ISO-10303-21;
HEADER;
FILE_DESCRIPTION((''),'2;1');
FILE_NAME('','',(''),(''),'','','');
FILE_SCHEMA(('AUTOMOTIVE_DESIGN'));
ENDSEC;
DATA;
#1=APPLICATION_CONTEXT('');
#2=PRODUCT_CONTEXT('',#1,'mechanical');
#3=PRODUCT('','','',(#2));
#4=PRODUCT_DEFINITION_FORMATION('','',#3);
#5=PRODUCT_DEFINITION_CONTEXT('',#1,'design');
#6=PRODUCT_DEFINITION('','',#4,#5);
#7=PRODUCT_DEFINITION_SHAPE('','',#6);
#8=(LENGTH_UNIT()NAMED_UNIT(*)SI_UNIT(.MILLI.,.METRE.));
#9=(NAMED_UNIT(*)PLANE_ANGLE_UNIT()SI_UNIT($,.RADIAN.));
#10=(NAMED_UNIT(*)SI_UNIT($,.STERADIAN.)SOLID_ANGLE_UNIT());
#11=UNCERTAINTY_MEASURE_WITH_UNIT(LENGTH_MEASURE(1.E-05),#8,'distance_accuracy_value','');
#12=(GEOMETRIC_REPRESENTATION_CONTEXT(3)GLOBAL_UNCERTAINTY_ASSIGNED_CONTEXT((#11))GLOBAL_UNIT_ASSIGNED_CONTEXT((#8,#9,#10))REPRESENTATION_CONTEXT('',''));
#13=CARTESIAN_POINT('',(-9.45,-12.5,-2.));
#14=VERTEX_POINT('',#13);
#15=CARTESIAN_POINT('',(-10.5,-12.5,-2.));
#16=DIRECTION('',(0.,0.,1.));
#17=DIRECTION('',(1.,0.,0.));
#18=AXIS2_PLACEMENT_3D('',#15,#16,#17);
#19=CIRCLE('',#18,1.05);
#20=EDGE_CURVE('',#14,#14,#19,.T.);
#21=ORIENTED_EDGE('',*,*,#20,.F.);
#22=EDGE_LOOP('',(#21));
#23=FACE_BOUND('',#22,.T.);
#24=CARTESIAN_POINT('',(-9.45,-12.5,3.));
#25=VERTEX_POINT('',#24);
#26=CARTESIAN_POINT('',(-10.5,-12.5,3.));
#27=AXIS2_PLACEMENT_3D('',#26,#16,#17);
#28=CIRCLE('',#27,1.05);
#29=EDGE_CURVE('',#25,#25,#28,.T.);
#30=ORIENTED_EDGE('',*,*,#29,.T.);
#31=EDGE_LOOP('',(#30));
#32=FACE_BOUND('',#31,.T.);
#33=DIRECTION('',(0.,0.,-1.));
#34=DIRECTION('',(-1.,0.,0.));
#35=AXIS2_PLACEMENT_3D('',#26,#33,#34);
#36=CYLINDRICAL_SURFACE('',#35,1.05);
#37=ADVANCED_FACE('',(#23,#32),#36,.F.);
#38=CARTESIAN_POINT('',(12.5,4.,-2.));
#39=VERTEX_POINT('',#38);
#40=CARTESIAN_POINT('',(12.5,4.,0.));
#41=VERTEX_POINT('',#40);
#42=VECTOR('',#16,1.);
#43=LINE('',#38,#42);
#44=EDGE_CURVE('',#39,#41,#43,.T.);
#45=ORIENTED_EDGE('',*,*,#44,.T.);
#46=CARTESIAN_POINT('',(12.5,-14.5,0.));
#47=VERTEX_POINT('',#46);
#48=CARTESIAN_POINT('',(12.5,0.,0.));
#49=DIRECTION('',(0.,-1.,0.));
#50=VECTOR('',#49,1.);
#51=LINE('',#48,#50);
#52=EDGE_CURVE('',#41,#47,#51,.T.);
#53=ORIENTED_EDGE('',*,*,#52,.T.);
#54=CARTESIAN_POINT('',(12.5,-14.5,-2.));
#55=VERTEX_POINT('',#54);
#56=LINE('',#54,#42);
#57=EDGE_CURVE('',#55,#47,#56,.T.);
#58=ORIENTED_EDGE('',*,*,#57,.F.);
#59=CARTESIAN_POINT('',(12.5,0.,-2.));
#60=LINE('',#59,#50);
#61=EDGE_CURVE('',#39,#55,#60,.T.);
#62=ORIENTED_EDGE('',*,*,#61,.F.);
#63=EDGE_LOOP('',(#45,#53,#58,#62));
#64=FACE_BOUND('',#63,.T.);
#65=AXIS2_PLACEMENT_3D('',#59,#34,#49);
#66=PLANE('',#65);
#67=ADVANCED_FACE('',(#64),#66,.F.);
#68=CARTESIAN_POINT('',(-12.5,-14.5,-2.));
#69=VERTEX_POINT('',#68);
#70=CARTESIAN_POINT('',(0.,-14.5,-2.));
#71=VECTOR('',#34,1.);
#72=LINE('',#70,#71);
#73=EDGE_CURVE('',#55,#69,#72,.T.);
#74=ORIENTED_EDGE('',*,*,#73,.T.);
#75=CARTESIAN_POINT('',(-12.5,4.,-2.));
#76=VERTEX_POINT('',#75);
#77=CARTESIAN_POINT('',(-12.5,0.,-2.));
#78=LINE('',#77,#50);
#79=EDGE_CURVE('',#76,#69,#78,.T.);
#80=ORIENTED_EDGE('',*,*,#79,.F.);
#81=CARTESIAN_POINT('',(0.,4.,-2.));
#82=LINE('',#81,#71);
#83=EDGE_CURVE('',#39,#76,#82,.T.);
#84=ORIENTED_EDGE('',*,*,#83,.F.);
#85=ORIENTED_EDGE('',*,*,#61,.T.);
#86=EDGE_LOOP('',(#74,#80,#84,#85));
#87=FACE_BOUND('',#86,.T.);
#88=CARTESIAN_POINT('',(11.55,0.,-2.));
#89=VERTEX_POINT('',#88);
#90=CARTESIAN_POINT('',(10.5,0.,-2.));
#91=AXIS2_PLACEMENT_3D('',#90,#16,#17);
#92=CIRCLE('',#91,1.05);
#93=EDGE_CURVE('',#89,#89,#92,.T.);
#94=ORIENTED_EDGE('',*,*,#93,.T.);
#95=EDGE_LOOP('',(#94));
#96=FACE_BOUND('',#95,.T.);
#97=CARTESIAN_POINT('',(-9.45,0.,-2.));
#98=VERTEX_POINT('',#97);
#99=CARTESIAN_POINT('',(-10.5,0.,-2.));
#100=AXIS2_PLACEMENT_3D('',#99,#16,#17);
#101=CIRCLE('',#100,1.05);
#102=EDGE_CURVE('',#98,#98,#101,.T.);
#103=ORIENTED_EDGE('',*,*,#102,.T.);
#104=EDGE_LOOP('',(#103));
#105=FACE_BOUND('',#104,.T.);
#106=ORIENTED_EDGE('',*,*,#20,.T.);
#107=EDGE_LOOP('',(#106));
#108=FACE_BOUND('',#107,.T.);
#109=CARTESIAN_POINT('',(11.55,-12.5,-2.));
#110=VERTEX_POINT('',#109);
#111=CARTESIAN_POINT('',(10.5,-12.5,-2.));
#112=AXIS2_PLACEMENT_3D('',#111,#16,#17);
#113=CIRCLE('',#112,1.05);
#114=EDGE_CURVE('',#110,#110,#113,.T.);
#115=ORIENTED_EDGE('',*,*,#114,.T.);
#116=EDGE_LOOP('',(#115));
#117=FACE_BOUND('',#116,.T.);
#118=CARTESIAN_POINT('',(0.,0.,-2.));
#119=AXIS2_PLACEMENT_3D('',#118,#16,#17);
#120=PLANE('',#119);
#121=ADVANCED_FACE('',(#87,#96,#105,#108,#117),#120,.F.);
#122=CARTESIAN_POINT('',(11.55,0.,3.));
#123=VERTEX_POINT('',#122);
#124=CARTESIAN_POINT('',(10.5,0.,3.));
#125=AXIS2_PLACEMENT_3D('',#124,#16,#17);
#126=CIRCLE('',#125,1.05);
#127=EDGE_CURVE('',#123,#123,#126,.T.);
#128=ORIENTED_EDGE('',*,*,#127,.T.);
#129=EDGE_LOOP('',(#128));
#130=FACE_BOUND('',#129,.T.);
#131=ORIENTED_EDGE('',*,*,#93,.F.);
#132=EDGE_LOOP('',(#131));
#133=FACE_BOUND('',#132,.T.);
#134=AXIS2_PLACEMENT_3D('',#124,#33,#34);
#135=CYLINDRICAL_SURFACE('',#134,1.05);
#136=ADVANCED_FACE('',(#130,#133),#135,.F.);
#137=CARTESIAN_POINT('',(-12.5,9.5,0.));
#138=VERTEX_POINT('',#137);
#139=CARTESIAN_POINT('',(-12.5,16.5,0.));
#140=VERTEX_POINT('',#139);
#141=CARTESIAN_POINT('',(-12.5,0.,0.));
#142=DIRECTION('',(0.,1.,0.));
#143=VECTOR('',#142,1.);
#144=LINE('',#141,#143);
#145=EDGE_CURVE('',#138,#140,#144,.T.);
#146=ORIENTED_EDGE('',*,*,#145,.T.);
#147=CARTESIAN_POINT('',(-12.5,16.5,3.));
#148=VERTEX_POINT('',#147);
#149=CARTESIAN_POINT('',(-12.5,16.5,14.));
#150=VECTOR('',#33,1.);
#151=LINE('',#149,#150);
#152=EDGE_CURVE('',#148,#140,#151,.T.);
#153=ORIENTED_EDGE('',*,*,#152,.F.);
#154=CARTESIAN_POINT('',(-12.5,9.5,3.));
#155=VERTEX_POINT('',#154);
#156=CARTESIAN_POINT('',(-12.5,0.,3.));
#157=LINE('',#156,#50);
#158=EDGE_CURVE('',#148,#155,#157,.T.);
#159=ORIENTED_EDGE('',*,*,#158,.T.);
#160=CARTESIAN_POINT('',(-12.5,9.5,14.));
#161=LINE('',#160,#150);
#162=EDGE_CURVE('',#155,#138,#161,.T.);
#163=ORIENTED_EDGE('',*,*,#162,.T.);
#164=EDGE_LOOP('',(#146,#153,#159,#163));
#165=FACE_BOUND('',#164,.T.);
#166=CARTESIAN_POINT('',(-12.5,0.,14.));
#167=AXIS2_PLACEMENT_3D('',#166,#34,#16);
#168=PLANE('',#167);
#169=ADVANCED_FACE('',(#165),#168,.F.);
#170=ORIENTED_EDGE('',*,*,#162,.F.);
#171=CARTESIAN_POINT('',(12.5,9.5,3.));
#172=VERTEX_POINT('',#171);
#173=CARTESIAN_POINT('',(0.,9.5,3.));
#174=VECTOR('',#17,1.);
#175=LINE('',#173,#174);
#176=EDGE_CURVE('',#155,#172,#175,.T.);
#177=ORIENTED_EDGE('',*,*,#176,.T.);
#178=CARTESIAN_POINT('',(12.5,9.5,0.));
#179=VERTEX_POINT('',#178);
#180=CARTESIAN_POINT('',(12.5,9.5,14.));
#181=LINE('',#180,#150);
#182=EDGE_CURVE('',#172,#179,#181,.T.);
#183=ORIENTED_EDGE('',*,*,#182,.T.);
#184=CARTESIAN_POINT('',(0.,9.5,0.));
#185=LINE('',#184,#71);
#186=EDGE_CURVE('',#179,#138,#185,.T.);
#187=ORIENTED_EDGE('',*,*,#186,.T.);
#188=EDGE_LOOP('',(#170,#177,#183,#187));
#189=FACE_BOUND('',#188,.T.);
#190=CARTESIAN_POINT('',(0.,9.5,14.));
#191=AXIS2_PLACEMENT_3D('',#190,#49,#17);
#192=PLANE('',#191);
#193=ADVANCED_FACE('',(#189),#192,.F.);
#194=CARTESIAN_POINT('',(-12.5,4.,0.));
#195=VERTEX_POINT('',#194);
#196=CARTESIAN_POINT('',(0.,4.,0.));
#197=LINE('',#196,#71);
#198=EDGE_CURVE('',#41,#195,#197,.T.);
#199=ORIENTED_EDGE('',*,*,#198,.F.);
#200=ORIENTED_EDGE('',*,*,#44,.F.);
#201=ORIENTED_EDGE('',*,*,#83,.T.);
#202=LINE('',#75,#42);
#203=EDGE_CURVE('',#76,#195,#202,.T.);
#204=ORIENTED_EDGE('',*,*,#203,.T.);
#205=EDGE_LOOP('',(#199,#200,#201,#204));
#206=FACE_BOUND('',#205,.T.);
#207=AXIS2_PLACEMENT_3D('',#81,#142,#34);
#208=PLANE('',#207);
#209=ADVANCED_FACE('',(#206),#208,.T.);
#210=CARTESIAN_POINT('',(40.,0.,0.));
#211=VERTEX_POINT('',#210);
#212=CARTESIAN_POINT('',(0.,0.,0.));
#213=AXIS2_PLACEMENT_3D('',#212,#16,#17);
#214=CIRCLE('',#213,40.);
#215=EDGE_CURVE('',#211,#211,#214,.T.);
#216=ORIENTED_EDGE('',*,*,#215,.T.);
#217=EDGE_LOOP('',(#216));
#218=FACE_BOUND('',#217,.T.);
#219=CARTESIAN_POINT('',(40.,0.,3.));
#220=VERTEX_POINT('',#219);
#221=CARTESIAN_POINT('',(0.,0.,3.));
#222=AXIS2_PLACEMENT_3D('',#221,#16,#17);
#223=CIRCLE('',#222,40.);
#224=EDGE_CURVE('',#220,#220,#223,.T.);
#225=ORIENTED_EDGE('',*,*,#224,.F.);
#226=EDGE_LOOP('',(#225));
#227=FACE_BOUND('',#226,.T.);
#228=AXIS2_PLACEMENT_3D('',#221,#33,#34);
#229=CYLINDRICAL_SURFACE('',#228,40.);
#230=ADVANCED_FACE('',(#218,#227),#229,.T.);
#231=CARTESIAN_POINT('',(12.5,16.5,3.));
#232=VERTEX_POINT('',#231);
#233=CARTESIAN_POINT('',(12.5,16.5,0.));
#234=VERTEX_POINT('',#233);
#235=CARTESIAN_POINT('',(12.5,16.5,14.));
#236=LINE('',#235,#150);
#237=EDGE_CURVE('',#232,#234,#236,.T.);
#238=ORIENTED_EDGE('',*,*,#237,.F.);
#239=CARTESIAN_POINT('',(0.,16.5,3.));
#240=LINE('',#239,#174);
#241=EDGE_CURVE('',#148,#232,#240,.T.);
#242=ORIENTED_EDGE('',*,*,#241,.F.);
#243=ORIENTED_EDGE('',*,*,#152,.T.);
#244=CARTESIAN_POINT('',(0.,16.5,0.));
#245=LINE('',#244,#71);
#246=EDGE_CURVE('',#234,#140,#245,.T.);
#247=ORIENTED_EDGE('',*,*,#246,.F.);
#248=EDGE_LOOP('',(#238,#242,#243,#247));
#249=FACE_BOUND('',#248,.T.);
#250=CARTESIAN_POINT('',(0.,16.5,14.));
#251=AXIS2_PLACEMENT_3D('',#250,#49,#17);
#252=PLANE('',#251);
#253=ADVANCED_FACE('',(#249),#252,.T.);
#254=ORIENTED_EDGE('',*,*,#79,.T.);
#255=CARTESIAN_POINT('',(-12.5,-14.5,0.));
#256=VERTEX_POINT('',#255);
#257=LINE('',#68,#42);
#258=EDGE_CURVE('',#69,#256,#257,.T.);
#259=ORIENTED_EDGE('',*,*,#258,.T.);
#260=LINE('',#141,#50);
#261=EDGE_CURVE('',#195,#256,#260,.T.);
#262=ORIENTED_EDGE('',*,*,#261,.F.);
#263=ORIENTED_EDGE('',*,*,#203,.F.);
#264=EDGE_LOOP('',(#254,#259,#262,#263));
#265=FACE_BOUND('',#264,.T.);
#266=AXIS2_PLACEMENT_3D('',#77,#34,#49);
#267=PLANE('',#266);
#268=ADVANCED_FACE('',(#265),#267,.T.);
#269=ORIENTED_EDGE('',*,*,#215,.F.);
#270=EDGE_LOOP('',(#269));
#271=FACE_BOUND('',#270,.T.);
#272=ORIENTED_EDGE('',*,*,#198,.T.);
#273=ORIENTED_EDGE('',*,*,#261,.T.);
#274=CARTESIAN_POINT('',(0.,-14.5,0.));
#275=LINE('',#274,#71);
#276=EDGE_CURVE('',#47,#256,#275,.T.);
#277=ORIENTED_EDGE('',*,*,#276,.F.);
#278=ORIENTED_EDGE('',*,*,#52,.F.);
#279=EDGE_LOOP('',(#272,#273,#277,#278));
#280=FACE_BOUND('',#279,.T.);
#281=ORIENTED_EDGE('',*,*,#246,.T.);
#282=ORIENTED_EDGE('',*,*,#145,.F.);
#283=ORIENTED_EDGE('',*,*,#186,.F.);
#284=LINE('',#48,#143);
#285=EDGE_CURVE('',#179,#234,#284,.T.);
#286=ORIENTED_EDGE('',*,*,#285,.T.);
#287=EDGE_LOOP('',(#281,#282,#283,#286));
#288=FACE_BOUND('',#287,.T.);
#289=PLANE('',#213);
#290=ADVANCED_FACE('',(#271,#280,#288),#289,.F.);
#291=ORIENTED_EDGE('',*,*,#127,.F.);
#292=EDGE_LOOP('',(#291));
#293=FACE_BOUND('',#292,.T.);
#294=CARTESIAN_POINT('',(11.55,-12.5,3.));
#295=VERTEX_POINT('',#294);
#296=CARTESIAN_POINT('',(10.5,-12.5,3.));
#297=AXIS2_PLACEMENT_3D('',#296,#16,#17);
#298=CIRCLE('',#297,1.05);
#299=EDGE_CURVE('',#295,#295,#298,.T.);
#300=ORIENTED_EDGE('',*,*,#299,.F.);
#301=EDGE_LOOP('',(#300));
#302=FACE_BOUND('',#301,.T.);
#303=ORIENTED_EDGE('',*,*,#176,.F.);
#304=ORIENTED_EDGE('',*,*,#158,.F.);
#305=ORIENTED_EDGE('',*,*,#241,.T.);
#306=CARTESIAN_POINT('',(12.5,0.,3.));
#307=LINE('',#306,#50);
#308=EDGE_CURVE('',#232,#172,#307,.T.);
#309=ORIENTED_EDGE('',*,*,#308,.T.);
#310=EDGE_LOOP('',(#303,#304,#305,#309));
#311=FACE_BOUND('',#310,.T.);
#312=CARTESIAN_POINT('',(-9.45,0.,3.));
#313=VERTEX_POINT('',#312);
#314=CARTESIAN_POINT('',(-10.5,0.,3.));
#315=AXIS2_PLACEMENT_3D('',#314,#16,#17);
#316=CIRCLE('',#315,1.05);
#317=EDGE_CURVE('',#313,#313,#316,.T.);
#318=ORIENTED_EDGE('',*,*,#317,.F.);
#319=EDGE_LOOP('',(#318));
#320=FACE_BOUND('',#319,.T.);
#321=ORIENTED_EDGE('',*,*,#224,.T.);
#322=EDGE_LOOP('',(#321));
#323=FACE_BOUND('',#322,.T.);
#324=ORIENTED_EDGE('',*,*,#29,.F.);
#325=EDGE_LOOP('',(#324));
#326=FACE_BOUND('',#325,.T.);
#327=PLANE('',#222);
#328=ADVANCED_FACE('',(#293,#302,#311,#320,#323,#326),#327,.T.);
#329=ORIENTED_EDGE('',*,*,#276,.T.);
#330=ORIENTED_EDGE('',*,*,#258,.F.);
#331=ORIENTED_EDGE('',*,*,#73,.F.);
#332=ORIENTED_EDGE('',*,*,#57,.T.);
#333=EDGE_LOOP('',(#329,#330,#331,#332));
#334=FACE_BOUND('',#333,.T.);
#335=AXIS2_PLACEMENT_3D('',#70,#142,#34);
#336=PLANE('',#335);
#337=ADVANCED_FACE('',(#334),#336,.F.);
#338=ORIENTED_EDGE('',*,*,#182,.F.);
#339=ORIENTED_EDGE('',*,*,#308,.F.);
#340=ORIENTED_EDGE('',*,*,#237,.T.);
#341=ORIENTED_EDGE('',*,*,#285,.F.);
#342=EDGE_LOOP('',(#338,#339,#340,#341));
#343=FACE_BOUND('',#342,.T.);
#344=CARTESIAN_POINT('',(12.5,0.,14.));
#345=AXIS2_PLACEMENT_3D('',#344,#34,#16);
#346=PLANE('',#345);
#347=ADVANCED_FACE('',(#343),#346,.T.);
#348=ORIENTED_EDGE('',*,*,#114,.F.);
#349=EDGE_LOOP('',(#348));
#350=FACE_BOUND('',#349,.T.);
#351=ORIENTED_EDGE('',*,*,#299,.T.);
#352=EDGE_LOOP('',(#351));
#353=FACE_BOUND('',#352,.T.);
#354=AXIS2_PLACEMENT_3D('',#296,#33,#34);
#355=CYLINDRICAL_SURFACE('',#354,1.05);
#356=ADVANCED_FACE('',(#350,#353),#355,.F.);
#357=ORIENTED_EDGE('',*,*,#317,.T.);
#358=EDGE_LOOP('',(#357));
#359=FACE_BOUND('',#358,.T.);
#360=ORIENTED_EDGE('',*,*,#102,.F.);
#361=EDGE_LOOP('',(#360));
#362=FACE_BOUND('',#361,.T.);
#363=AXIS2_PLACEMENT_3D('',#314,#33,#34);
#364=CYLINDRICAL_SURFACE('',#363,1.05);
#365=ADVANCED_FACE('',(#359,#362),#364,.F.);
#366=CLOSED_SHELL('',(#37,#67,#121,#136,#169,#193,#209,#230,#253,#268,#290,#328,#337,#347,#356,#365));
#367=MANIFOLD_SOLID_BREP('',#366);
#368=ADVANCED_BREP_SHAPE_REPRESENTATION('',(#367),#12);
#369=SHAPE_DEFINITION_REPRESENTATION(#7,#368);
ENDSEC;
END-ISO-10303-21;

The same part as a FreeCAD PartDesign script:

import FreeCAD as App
import Part
import Sketcher
from FreeCAD import Vector
Q = App.Units.Quantity


def add_polygon(sketch, points):
    """Adds a closed chain of lines whose ends are joined by coincident constraints."""
    first, n = sketch.GeometryCount, len(points)
    for a, b in zip(points, points[1:] + points[:1]):
        sketch.addGeometry(Part.LineSegment(App.Vector(*a, 0), App.Vector(*b, 0)), False)
    for i in range(n):
        sketch.addConstraint(Sketcher.Constraint("Coincident", first + i, 2, first + (i + 1) % n, 1))

doc = App.newDocument("Part")
body = doc.addObject("PartDesign::Body", "Body")

# Sketch on XY plane
sketch1 = body.newObject("Sketcher::SketchObject", "Sketch")
sketch1.AttachmentSupport = (doc.getObject("XY_Plane"), [""])
sketch1.MapMode = "FlatFace"
sketch1.addGeometry([
    Part.Circle(Vector(0, 0, 0), Vector(0, 0, 1), 40),  # 0
    Part.Circle(Vector(-10.5, -12.5, 0), Vector(0, 0, 1), 1.1),  # 1
    Part.Circle(Vector(10.5, -12.5, 0), Vector(0, 0, 1), 1.1),  # 2
    Part.Circle(Vector(-10.5, 0, 0), Vector(0, 0, 1), 1.1),  # 3
    Part.Circle(Vector(10.5, 0, 0), Vector(0, 0, 1), 1.1),  # 4
], False)
sketch1.addConstraint([
    Sketcher.Constraint("Coincident", 0, 3, -1, 1),
    Sketcher.Constraint("Equal", 1, 2),
    Sketcher.Constraint("Equal", 2, 3),
    Sketcher.Constraint("Equal", 3, 4),
    Sketcher.Constraint("Symmetric", 3, 3, 4, 3, -1, 1),
    Sketcher.Constraint("Symmetric", 1, 3, 2, 3, -2),
    Sketcher.Constraint("PointOnObject", 3, 3, -1),
    Sketcher.Constraint("Vertical", 1, 3, 3, 3),
    Sketcher.Constraint("Diameter", 0, Q("80 mm")),
    Sketcher.Constraint("Diameter", 1, Q("2.1 mm")),
    Sketcher.Constraint("DistanceX", 1, 3, 2, 3, Q("21 mm")),
    Sketcher.Constraint("DistanceY", 1, 3, -1, 1, Q("12.5 mm")),
])
pad1 = body.newObject("PartDesign::Pad", "Pad")
pad1.Profile = sketch1
pad1.Length = 3

# Sketch on XY plane
sketch2 = body.newObject("Sketcher::SketchObject", "Sketch001")
sketch2.AttachmentSupport = (doc.getObject("XY_Plane"), [""])
sketch2.MapMode = "FlatFace"
add_polygon(sketch2, [(-12, 16), (-12, 10), (12, 10), (12, 16)])  # lines 0-3
sketch2.addConstraint([
    Sketcher.Constraint("Vertical", 0),
    Sketcher.Constraint("Horizontal", 1),
    Sketcher.Constraint("Vertical", 2),
    Sketcher.Constraint("Horizontal", 3),
    Sketcher.Constraint("DistanceX", 1, 1, 1, 2, Q("25 mm")),
    Sketcher.Constraint("DistanceY", 0, 2, 0, 1, Q("7 mm")),
    Sketcher.Constraint("DistanceX", 0, 2, -1, 1, Q("12.5 mm")),
    Sketcher.Constraint("DistanceY", -1, 1, 0, 2, Q("9.5 mm")),
])
pocket1 = body.newObject("PartDesign::Pocket", "Pocket")
pocket1.Profile = sketch2
pocket1.Length = 14
pocket1.Reversed = True

# Sketch on XY plane
sketch3 = body.newObject("Sketcher::SketchObject", "Sketch002")
sketch3.AttachmentSupport = (doc.getObject("XY_Plane"), [""])
sketch3.MapMode = "FlatFace"
add_polygon(sketch3, [(12, 4), (12, 10), (-12, 10), (-12, 4)])  # lines 0-3
sketch3.addConstraint([
    Sketcher.Constraint("Vertical", 0),
    Sketcher.Constraint("Horizontal", 1),
    Sketcher.Constraint("Vertical", 2),
    Sketcher.Constraint("Horizontal", 3),
    Sketcher.Constraint("DistanceX", 1, 2, 1, 1, Q("25 mm")),
    Sketcher.Constraint("DistanceY", 0, 1, 0, 2, Q("5.5 mm")),
    Sketcher.Constraint("DistanceY", -1, 1, 2, 2, Q("4 mm")),
    Sketcher.Constraint("DistanceX", -1, 1, 0, 2, Q("12.5 mm")),
])
pad2 = body.newObject("PartDesign::Pad", "Pad001")
pad2.Profile = sketch3
pad2.Length = 2
pad2.Reversed = True

# Sketch on XY plane
sketch4 = body.newObject("Sketcher::SketchObject", "Sketch003")
sketch4.AttachmentSupport = (doc.getObject("XY_Plane"), [""])
sketch4.MapMode = "FlatFace"
add_polygon(sketch4, [(12, 4), (12, 10), (-12, 10), (-12, 4)])  # lines 0-3
sketch4.addConstraint([
    Sketcher.Constraint("Vertical", 0),
    Sketcher.Constraint("Horizontal", 1),
    Sketcher.Constraint("Vertical", 2),
    Sketcher.Constraint("Horizontal", 3),
    Sketcher.Constraint("DistanceX", 1, 2, 1, 1, Q("25 mm")),
    Sketcher.Constraint("DistanceY", 0, 1, 0, 2, Q("5.5 mm")),
    Sketcher.Constraint("DistanceY", -1, 1, 2, 2, Q("4 mm")),
    Sketcher.Constraint("DistanceX", -1, 1, 0, 2, Q("12.5 mm")),
])
pocket2 = body.newObject("PartDesign::Pocket", "Pocket001")
pocket2.Profile = sketch4
pocket2.Length = 2

# Sketch on XY plane
sketch5 = body.newObject("Sketcher::SketchObject", "Sketch004")
sketch5.AttachmentSupport = (doc.getObject("XY_Plane"), [""])
sketch5.MapMode = "FlatFace"
add_polygon(sketch5, [(12, -14), (12, 4), (-12, 4), (-12, -14)])  # lines 0-3
sketch5.addConstraint([
    Sketcher.Constraint("Vertical", 0),
    Sketcher.Constraint("Horizontal", 1),
    Sketcher.Constraint("Vertical", 2),
    Sketcher.Constraint("Horizontal", 3),
    Sketcher.Constraint("DistanceX", 1, 2, 1, 1, Q("25 mm")),
    Sketcher.Constraint("DistanceY", 0, 1, 0, 2, Q("18.5 mm")),
    Sketcher.Constraint("DistanceY", -1, 1, 0, 2, Q("4 mm")),
    Sketcher.Constraint("DistanceX", -1, 1, 0, 2, Q("12.5 mm")),
])
pad3 = body.newObject("PartDesign::Pad", "Pad002")
pad3.Profile = sketch5
pad3.Length = 2
pad3.Reversed = True

# Sketch on XY plane
sketch6 = body.newObject("Sketcher::SketchObject", "Sketch005")
sketch6.AttachmentSupport = (doc.getObject("XY_Plane"), [""])
sketch6.MapMode = "FlatFace"
sketch6.addGeometry([
    Part.Circle(Vector(-10.5, 0, 0), Vector(0, 0, 1), 1.1),
    Part.Circle(Vector(-10.5, -12.5, 0), Vector(0, 0, 1), 1.1),
    Part.Circle(Vector(10.5, 0, 0), Vector(0, 0, 1), 1.1),
    Part.Circle(Vector(10.5, -12.5, 0), Vector(0, 0, 1), 1.1),
], False)
sketch6.addConstraint([
    Sketcher.Constraint("Equal", 0, 1),
    Sketcher.Constraint("Equal", 1, 2),
    Sketcher.Constraint("Equal", 2, 3),
    Sketcher.Constraint("Symmetric", 0, 3, 2, 3, -1, 1),
    Sketcher.Constraint("Symmetric", 1, 3, 3, 3, -2),
    Sketcher.Constraint("PointOnObject", 0, 3, -1),
    Sketcher.Constraint("Vertical", 0, 3, 1, 3),
    Sketcher.Constraint("Diameter", 0, Q("2.1 mm")),
    Sketcher.Constraint("DistanceX", 0, 3, 2, 3, Q("21 mm")),
    Sketcher.Constraint("DistanceY", 1, 3, -1, 1, Q("12.5 mm")),
])
pocket3 = body.newObject("PartDesign::Pocket", "Pocket002")
pocket3.Profile = sketch6
pocket3.Type = "ThroughAll"
pocket3.Midplane = True

doc.recompute()
